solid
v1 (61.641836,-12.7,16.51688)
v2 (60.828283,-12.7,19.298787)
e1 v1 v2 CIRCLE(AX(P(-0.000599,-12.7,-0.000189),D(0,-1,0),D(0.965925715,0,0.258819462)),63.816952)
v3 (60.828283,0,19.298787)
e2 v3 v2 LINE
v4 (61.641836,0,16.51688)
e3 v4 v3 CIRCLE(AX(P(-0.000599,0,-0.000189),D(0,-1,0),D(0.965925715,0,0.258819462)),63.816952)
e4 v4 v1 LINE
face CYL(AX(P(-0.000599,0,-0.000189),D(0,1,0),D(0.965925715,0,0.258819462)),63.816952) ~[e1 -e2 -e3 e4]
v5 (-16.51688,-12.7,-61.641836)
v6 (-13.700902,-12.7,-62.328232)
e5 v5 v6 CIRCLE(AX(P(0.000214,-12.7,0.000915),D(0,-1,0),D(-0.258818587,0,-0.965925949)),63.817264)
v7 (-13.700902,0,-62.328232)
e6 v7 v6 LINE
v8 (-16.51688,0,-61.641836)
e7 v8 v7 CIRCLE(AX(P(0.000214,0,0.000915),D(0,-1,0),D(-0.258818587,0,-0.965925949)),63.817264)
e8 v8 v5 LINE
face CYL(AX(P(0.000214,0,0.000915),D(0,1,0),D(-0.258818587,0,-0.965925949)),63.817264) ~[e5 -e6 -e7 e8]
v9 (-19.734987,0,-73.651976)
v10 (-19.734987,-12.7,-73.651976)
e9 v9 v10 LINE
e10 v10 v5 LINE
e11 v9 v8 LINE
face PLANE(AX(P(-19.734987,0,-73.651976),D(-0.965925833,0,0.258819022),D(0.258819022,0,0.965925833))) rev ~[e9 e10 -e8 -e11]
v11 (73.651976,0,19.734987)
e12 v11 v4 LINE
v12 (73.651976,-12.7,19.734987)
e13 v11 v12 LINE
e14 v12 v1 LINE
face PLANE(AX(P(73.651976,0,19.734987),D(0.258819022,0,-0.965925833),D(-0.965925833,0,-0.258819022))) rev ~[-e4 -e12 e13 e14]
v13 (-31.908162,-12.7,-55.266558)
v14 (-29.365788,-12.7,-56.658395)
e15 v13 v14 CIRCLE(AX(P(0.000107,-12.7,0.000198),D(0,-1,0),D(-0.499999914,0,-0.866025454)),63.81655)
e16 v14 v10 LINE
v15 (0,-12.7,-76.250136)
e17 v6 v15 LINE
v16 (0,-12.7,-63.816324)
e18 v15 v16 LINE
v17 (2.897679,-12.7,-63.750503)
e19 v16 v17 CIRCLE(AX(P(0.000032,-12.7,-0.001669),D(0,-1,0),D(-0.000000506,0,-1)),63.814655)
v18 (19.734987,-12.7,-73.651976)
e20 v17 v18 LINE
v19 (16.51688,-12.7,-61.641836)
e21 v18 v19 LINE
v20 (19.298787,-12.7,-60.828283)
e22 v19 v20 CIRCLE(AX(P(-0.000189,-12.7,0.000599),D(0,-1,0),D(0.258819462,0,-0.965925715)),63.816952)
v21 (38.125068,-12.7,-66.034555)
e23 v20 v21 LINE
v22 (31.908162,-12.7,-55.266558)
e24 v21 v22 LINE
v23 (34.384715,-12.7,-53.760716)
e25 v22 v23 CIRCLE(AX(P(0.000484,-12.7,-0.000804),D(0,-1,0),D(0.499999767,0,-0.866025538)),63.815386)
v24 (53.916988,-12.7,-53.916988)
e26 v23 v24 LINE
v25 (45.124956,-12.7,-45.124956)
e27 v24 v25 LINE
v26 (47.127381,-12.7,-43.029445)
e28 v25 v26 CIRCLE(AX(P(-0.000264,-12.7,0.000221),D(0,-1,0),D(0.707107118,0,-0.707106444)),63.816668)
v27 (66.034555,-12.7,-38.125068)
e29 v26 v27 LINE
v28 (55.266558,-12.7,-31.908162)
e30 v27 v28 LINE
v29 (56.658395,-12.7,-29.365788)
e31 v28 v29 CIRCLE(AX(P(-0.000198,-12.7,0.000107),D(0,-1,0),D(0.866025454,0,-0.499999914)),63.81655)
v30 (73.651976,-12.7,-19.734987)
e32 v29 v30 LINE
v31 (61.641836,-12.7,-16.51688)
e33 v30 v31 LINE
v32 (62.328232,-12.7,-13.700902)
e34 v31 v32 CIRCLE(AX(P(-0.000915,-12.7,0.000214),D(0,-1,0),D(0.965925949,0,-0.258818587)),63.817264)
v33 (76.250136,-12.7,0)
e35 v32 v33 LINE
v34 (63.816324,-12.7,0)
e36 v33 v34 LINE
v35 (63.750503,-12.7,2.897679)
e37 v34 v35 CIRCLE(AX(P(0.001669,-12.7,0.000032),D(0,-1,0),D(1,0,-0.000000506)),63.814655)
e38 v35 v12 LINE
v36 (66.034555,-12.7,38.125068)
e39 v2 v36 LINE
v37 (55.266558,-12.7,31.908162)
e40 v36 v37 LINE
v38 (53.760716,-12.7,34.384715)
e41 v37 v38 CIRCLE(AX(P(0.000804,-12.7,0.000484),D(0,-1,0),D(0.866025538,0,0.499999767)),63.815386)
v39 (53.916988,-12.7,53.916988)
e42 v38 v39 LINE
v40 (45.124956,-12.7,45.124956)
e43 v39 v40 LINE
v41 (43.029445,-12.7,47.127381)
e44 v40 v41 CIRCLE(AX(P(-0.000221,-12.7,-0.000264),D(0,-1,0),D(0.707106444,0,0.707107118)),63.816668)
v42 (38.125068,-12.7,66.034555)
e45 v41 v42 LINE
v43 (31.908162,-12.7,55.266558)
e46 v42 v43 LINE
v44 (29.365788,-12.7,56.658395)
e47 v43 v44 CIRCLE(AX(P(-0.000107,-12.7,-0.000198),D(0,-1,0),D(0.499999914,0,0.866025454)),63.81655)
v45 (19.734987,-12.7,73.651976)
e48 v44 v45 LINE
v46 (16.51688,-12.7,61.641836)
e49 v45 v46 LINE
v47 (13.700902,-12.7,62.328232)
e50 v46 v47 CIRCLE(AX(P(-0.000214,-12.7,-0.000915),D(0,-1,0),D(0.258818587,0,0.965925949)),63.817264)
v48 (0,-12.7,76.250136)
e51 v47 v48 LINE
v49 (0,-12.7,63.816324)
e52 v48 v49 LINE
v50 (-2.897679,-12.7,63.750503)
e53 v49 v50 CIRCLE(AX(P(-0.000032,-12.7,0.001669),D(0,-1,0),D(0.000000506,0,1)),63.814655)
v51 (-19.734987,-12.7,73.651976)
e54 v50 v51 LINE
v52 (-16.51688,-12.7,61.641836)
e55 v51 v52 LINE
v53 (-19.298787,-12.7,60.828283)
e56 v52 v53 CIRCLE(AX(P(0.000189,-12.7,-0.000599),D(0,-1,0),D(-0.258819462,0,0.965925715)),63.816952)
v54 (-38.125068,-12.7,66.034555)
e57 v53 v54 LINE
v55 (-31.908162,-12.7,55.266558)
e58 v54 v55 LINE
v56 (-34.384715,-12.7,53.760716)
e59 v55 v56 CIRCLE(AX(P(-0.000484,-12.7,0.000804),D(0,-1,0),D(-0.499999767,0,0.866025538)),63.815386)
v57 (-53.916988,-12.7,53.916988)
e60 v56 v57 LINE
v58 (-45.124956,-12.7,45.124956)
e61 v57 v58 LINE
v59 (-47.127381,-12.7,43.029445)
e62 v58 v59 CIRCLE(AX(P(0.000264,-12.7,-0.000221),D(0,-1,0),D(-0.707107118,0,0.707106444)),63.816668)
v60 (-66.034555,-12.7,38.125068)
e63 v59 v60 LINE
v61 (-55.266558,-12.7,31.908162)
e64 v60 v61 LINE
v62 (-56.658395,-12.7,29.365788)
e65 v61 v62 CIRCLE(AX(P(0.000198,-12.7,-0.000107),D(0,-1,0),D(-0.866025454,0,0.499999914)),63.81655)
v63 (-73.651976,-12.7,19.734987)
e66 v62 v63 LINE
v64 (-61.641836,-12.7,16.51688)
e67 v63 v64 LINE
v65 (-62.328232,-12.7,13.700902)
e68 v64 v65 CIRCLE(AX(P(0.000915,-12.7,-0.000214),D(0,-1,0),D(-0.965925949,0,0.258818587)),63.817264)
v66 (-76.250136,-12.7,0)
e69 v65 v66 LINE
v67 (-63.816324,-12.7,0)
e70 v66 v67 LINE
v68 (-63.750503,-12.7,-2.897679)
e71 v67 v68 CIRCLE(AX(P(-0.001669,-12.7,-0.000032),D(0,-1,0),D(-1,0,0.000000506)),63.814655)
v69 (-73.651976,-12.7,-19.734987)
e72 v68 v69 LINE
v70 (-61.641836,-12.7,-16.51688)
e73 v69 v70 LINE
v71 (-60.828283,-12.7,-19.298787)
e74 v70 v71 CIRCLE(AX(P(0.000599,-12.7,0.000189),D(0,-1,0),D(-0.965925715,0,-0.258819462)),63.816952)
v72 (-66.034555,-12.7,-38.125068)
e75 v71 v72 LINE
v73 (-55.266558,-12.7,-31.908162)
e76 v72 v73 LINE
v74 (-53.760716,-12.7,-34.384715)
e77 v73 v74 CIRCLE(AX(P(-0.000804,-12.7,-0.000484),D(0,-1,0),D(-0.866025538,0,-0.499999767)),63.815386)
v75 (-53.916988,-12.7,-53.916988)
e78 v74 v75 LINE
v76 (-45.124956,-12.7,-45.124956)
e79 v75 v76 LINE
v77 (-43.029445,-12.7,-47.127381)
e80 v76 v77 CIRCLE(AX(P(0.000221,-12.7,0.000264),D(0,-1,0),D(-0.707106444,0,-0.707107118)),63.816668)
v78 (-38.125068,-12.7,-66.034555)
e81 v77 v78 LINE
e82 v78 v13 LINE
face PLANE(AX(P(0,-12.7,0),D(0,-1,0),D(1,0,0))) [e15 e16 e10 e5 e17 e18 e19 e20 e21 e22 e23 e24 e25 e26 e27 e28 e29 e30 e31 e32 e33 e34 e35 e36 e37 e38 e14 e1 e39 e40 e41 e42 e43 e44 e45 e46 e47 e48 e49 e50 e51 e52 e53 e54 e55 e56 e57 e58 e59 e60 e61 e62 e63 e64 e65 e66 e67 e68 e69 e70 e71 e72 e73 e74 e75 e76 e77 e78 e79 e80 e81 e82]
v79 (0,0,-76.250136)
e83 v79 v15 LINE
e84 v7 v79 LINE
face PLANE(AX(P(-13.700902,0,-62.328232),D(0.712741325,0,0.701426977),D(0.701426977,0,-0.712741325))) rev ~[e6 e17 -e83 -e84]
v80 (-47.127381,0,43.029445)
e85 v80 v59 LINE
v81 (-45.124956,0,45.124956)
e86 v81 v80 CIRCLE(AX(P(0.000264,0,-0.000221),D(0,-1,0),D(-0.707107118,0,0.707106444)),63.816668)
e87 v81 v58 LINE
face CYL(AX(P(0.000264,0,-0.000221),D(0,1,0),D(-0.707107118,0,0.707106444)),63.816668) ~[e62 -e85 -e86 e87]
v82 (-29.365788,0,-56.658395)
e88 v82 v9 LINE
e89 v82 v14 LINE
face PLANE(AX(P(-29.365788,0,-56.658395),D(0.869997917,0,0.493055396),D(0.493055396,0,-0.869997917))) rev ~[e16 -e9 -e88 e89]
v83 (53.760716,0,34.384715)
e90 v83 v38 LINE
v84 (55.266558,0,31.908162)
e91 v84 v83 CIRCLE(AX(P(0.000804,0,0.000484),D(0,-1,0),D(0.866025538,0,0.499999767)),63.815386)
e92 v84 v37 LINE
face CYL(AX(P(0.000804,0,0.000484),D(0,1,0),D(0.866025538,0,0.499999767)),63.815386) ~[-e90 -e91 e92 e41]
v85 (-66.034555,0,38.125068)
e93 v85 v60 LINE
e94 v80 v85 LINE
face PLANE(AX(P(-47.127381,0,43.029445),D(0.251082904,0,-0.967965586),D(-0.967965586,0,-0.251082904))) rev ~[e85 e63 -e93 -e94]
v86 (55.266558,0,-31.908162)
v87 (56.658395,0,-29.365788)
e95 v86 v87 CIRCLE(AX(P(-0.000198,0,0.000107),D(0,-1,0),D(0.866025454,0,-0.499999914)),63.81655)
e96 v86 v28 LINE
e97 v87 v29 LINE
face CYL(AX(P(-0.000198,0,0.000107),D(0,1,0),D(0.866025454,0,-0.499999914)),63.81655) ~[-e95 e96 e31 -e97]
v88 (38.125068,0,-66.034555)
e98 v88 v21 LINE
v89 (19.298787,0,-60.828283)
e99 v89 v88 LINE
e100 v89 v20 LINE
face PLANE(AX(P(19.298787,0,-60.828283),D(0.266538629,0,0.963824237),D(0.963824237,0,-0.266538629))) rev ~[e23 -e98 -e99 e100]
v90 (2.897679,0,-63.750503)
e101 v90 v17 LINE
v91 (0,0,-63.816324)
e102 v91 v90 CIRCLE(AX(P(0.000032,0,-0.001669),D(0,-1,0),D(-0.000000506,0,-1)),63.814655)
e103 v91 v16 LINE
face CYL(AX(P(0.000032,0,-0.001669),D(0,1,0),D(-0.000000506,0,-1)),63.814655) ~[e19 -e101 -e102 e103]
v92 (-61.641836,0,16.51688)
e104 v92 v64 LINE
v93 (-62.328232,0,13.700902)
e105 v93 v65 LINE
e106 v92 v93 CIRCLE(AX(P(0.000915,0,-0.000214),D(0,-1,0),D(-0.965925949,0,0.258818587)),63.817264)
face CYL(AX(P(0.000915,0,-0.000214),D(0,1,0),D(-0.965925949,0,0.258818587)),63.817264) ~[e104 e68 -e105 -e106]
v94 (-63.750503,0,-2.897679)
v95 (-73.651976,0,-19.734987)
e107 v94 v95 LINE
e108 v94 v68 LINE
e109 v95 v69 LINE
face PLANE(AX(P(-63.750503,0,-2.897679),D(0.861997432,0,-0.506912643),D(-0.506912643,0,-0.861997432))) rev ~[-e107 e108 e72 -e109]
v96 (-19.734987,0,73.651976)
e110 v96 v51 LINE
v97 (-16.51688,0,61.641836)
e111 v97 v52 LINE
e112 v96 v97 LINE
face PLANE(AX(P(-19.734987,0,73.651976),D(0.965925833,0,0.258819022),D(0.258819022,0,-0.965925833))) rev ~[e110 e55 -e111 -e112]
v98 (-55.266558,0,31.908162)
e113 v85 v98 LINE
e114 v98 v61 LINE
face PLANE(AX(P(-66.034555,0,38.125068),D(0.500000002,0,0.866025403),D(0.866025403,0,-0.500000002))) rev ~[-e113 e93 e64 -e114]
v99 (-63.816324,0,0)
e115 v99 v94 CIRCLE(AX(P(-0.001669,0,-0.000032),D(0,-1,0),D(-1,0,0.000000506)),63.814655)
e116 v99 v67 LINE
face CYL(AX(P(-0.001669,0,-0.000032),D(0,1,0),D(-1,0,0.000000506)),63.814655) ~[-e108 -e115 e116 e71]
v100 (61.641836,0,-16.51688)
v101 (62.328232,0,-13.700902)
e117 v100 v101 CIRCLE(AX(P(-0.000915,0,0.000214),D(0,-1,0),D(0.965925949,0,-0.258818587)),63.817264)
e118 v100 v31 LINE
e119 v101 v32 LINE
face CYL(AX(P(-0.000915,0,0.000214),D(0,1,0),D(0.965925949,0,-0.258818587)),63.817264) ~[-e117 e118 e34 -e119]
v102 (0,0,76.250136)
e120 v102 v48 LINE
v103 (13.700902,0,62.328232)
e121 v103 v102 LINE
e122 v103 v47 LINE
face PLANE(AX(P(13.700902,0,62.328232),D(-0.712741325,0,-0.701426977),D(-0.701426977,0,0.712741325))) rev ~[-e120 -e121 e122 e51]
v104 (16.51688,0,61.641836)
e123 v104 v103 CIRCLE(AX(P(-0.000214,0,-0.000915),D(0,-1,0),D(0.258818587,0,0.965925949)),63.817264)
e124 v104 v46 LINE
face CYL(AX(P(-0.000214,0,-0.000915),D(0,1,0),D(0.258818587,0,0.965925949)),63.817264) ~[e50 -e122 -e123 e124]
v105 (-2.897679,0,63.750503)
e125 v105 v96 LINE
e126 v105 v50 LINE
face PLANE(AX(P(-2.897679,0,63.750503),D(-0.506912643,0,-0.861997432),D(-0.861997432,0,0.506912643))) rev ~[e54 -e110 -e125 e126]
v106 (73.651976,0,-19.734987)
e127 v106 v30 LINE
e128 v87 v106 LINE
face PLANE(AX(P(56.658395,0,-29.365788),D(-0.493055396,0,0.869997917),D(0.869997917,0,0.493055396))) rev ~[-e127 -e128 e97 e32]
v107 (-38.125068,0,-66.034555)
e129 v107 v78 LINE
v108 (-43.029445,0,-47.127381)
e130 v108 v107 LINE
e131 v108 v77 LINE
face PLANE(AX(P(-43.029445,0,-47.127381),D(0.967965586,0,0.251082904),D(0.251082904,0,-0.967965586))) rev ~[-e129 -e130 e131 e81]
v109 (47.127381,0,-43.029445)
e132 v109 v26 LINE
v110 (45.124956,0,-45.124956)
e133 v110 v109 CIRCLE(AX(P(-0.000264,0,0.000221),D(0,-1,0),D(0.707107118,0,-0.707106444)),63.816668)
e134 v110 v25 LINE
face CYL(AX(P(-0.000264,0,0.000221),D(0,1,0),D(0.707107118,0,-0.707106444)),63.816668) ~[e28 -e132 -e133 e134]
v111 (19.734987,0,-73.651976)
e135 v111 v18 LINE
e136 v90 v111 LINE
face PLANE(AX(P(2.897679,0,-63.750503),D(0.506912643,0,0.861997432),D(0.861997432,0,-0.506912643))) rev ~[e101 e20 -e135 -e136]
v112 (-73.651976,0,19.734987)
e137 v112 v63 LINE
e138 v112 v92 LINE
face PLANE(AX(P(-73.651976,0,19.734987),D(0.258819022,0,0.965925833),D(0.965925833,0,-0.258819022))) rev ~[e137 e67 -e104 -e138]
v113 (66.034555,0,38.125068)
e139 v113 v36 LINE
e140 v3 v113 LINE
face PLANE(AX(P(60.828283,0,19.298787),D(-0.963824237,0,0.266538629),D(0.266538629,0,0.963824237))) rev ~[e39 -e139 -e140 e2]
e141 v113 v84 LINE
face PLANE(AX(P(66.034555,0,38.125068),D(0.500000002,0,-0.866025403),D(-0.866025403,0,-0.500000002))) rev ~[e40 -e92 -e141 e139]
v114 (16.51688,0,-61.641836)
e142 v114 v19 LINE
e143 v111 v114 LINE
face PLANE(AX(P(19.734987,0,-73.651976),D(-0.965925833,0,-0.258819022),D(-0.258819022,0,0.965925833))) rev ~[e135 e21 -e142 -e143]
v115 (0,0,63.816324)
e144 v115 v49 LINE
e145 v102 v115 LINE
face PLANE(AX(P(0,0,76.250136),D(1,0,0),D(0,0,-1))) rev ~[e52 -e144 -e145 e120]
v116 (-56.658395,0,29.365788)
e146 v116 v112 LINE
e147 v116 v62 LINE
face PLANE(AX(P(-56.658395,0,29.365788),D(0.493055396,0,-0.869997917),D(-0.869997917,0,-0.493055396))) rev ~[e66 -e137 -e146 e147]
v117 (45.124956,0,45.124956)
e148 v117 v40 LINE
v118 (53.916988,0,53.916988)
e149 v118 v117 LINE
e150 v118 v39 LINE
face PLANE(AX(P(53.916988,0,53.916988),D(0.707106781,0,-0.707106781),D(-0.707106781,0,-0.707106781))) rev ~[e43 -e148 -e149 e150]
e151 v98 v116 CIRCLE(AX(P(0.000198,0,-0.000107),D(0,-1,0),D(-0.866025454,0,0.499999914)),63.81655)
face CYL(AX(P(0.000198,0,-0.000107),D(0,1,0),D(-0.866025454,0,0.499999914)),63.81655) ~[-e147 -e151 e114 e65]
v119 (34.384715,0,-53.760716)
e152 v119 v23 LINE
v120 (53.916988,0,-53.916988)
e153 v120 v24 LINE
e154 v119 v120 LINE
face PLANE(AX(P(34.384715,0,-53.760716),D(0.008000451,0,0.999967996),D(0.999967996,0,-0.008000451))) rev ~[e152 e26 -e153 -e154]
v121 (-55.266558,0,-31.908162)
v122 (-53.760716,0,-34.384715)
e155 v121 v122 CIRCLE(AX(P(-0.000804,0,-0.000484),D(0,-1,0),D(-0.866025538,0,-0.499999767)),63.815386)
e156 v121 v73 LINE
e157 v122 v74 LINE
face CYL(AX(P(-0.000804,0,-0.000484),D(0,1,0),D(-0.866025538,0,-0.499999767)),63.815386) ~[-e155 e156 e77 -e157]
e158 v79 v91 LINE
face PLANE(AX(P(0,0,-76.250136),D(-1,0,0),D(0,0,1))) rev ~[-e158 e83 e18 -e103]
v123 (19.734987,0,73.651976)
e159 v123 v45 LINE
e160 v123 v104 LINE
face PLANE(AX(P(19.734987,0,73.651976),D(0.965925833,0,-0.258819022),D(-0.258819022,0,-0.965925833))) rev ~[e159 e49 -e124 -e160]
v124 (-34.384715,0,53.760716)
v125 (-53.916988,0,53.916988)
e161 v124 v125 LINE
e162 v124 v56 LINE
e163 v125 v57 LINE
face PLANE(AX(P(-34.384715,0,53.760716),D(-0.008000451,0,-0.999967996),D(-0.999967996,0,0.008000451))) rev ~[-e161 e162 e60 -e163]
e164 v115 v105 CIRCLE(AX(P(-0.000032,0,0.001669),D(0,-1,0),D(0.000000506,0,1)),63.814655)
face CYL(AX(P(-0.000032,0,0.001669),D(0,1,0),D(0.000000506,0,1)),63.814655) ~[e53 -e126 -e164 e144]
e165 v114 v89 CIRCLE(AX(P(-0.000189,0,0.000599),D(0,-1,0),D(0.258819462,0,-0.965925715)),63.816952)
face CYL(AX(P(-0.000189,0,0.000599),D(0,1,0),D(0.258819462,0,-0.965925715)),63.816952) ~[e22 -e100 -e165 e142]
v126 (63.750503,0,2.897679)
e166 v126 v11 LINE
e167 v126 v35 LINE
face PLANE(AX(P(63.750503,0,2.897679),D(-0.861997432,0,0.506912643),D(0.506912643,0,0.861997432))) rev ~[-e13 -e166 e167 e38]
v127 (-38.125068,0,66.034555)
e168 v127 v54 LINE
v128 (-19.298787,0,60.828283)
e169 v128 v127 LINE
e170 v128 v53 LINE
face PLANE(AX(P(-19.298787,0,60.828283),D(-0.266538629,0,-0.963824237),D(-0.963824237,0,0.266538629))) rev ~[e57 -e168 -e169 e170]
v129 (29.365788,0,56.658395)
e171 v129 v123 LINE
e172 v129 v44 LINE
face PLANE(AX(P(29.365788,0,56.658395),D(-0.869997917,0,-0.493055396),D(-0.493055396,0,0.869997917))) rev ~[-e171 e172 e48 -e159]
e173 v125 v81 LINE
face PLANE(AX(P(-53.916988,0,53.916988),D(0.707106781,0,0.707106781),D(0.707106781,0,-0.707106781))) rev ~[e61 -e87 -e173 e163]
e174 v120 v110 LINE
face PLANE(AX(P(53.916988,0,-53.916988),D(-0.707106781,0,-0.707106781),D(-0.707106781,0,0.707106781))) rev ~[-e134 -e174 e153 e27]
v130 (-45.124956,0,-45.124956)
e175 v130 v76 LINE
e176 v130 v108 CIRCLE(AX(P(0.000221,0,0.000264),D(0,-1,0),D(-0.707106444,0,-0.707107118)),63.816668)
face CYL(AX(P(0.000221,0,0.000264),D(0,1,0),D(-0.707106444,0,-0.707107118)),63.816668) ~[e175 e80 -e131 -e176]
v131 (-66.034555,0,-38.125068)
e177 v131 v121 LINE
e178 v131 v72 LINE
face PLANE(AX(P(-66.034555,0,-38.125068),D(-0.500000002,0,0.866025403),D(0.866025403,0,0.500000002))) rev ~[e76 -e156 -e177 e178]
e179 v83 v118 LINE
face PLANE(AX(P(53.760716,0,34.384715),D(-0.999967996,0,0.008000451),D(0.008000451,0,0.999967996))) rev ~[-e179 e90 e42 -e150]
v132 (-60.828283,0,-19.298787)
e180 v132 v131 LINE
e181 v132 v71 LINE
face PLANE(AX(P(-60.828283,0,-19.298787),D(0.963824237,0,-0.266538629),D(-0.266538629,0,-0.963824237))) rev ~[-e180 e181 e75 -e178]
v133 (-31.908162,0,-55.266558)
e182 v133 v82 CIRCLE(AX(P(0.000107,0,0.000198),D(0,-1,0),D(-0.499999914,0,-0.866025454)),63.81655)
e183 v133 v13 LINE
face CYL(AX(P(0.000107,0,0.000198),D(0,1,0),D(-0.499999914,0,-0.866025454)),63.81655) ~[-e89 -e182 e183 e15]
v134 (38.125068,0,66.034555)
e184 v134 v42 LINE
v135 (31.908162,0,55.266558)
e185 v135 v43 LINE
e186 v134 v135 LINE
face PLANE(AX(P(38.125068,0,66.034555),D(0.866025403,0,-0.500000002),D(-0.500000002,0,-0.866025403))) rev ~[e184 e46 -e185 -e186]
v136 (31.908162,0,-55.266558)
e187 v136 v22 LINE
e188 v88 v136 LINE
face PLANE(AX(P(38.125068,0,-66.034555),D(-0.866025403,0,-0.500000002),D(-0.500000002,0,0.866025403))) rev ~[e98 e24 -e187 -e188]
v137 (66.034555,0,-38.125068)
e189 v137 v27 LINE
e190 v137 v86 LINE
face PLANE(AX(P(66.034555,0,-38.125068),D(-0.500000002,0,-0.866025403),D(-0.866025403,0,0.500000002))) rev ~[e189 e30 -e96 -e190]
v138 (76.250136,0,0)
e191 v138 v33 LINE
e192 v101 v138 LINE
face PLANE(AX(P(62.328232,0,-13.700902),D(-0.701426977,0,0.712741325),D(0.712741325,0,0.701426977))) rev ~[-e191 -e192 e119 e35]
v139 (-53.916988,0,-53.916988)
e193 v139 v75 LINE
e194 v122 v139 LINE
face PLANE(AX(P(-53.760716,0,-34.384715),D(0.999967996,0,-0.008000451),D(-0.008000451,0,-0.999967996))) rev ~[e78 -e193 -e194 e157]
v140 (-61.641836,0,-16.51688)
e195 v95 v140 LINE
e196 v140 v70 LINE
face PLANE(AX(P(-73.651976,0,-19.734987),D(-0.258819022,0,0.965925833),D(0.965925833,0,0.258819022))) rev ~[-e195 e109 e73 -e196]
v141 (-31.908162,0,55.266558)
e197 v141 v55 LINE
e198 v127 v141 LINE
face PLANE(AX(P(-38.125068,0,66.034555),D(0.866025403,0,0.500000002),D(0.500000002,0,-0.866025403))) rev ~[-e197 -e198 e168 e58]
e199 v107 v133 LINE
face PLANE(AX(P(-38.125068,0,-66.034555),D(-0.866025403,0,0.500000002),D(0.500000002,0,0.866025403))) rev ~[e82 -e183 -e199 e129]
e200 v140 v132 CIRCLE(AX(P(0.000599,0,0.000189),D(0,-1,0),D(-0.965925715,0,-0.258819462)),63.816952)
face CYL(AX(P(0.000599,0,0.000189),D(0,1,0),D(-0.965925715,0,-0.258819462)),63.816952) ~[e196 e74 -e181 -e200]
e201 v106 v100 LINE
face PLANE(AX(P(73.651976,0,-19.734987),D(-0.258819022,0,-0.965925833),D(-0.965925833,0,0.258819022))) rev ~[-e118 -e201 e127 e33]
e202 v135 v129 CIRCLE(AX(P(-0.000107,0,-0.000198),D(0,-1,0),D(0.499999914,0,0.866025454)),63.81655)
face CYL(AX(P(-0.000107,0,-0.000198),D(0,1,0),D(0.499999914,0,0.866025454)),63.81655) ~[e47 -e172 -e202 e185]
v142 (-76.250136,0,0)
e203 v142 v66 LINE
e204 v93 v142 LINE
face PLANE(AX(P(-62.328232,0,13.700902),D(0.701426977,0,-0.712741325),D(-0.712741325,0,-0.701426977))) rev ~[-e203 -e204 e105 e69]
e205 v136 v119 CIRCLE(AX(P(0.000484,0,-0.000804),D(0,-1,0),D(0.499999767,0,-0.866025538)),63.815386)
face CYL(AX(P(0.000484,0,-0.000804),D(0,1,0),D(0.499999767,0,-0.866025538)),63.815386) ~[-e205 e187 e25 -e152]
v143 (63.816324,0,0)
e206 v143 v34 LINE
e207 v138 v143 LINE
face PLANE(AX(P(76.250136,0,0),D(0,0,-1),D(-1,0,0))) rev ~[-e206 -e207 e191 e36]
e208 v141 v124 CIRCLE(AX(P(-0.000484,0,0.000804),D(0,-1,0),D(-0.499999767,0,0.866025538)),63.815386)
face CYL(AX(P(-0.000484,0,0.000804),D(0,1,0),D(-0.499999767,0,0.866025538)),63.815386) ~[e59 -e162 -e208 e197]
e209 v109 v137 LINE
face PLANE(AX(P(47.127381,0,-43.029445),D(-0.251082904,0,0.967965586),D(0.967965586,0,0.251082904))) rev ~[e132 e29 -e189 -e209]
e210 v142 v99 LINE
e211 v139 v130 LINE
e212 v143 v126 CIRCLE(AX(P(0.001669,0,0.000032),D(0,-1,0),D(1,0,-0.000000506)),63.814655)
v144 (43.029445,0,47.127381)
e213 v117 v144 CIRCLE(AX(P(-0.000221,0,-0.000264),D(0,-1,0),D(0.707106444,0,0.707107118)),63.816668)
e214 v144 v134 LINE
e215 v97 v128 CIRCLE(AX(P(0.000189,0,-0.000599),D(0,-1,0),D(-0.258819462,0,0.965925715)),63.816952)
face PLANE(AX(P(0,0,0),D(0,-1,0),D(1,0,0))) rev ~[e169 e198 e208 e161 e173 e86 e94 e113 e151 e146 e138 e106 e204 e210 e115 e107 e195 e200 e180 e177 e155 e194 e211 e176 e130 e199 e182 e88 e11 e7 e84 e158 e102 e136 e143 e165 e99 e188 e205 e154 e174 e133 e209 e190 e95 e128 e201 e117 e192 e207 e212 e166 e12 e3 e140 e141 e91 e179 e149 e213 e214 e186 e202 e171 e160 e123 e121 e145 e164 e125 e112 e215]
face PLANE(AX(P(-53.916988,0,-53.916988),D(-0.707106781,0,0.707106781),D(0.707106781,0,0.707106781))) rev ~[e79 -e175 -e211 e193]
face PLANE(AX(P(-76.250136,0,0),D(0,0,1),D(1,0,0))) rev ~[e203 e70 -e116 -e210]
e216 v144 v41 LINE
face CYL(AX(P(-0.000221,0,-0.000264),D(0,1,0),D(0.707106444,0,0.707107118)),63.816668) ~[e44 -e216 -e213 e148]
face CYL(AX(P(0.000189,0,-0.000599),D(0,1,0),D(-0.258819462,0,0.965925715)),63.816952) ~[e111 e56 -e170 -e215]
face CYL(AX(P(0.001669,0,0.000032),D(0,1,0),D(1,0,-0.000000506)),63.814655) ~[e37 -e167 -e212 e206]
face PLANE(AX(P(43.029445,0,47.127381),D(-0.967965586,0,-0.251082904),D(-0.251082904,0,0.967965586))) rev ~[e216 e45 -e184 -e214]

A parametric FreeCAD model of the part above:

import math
import FreeCAD as App
import Part
import Sketcher

V = App.Vector
Q = App.Units.Quantity

doc = App.newDocument("Part")
body = doc.addObject("PartDesign::Body", "Body")

# Sketch on XZ plane
sketch1 = body.newObject("Sketcher::SketchObject", "Sketch")
sketch1.AttachmentSupport = (doc.getObject("XZ_Plane"), [""])
sketch1.MapMode = "FlatFace"
sketch1.addGeometry(Part.ArcOfCircle(Part.Circle(V(-0.000032, 0.001669, 0), V(0, 0, 1), 63.814655), math.radians(89.999971), math.radians(92.602537)), False)
sketch1.addGeometry(Part.LineSegment(V(-2.897679, 63.750503, 0), V(-19.734987, 73.651976, 0)), False)
sketch1.addGeometry(Part.LineSegment(V(-19.734987, 73.651976, 0), V(-16.51688, 61.641836, 0)), False)
sketch1.addGeometry(Part.ArcOfCircle(Part.Circle(V(0.000189, -0.000599, 0), V(0, 0, 1), 63.816952), math.radians(105.000025), math.radians(107.602497)), False)
sketch1.addGeometry(Part.LineSegment(V(-19.298787, 60.828283, 0), V(-38.125068, 66.034555, 0)), False)
sketch1.addGeometry(Part.LineSegment(V(-38.125068, 66.034555, 0), V(-31.908162, 55.266558, 0)), False)
sketch1.addGeometry(Part.ArcOfCircle(Part.Circle(V(-0.000484, 0.000804, 0), V(0, 0, 1), 63.815386), math.radians(119.999985), math.radians(122.602521)), False)
sketch1.addGeometry(Part.LineSegment(V(-34.384715, 53.760716, 0), V(-53.916988, 53.916988, 0)), False)
sketch1.addGeometry(Part.LineSegment(V(-53.916988, 53.916988, 0), V(-45.124956, 45.124956, 0)), False)
sketch1.addGeometry(Part.ArcOfCircle(Part.Circle(V(0.000264, -0.000221, 0), V(0, 0, 1), 63.816668), math.radians(135.000027), math.radians(137.602511)), False)
sketch1.addGeometry(Part.LineSegment(V(-47.127381, 43.029445, 0), V(-66.034555, 38.125068, 0)), False)
sketch1.addGeometry(Part.LineSegment(V(-66.034555, 38.125068, 0), V(-55.266558, 31.908162, 0)), False)
sketch1.addGeometry(Part.ArcOfCircle(Part.Circle(V(0.000198, -0.000107, 0), V(0, 0, 1), 63.81655), math.radians(150.000006), math.radians(152.602495)), False)
sketch1.addGeometry(Part.LineSegment(V(-56.658395, 29.365788, 0), V(-73.651976, 19.734987, 0)), False)
sketch1.addGeometry(Part.LineSegment(V(-73.651976, 19.734987, 0), V(-61.641836, 16.51688, 0)), False)
sketch1.addGeometry(Part.ArcOfCircle(Part.Circle(V(0.000915, -0.000214, 0), V(0, 0, 1), 63.817264), math.radians(165.000027), math.radians(167.602487)), False)
sketch1.addGeometry(Part.LineSegment(V(-62.328232, 13.700902, 0), V(-76.250136, 0, 0)), False)
sketch1.addGeometry(Part.LineSegment(V(-76.250136, 0, 0), V(-63.816324, 0, 0)), False)
sketch1.addGeometry(Part.ArcOfCircle(Part.Circle(V(-0.001669, -0.000032, 0), V(0, 0, 1), 63.814655), math.radians(179.999971), math.radians(182.602537)), False)
sketch1.addGeometry(Part.LineSegment(V(-63.750503, -2.897679, 0), V(-73.651976, -19.734987, 0)), False)
sketch1.addGeometry(Part.LineSegment(V(-73.651976, -19.734987, 0), V(-61.641836, -16.51688, 0)), False)
sketch1.addGeometry(Part.ArcOfCircle(Part.Circle(V(0.000599, 0.000189, 0), V(0, 0, 1), 63.816952), math.radians(-164.999975), math.radians(-162.397503)), False)
sketch1.addGeometry(Part.LineSegment(V(-60.828283, -19.298787, 0), V(-66.034555, -38.125068, 0)), False)
sketch1.addGeometry(Part.LineSegment(V(-66.034555, -38.125068, 0), V(-55.266558, -31.908162, 0)), False)
sketch1.addGeometry(Part.ArcOfCircle(Part.Circle(V(-0.000804, -0.000484, 0), V(0, 0, 1), 63.815386), math.radians(-150.000015), math.radians(-147.397479)), False)
sketch1.addGeometry(Part.LineSegment(V(-53.760716, -34.384715, 0), V(-53.916988, -53.916988, 0)), False)
sketch1.addGeometry(Part.LineSegment(V(-53.916988, -53.916988, 0), V(-45.124956, -45.124956, 0)), False)
sketch1.addGeometry(Part.ArcOfCircle(Part.Circle(V(0.000221, 0.000264, 0), V(0, 0, 1), 63.816668), math.radians(-134.999973), math.radians(-132.397489)), False)
sketch1.addGeometry(Part.LineSegment(V(-43.029445, -47.127381, 0), V(-38.125068, -66.034555, 0)), False)
sketch1.addGeometry(Part.LineSegment(V(-38.125068, -66.034555, 0), V(-31.908162, -55.266558, 0)), False)
sketch1.addGeometry(Part.ArcOfCircle(Part.Circle(V(0.000107, 0.000198, 0), V(0, 0, 1), 63.81655), math.radians(-119.999994), math.radians(-117.397505)), False)
sketch1.addGeometry(Part.LineSegment(V(-29.365788, -56.658395, 0), V(-19.734987, -73.651976, 0)), False)
sketch1.addGeometry(Part.LineSegment(V(-19.734987, -73.651976, 0), V(-16.51688, -61.641836, 0)), False)
sketch1.addGeometry(Part.ArcOfCircle(Part.Circle(V(0.000214, 0.000915, 0), V(0, 0, 1), 63.817264), math.radians(-104.999973), math.radians(-102.397513)), False)
sketch1.addGeometry(Part.LineSegment(V(-13.700902, -62.328232, 0), V(0, -76.250136, 0)), False)
sketch1.addGeometry(Part.LineSegment(V(0, -76.250136, 0), V(0, -63.816324, 0)), False)
sketch1.addGeometry(Part.ArcOfCircle(Part.Circle(V(0.000032, -0.001669, 0), V(0, 0, 1), 63.814655), math.radians(-90.000029), math.radians(-87.397463)), False)
sketch1.addGeometry(Part.LineSegment(V(2.897679, -63.750503, 0), V(19.734987, -73.651976, 0)), False)
sketch1.addGeometry(Part.LineSegment(V(19.734987, -73.651976, 0), V(16.51688, -61.641836, 0)), False)
sketch1.addGeometry(Part.ArcOfCircle(Part.Circle(V(-0.000189, 0.000599, 0), V(0, 0, 1), 63.816952), math.radians(-74.999975), math.radians(-72.397503)), False)
sketch1.addGeometry(Part.LineSegment(V(19.298787, -60.828283, 0), V(38.125068, -66.034555, 0)), False)
sketch1.addGeometry(Part.LineSegment(V(38.125068, -66.034555, 0), V(31.908162, -55.266558, 0)), False)
sketch1.addGeometry(Part.ArcOfCircle(Part.Circle(V(0.000484, -0.000804, 0), V(0, 0, 1), 63.815386), math.radians(-60.000015), math.radians(-57.397479)), False)
sketch1.addGeometry(Part.LineSegment(V(34.384715, -53.760716, 0), V(53.916988, -53.916988, 0)), False)
sketch1.addGeometry(Part.LineSegment(V(53.916988, -53.916988, 0), V(45.124956, -45.124956, 0)), False)
sketch1.addGeometry(Part.ArcOfCircle(Part.Circle(V(-0.000264, 0.000221, 0), V(0, 0, 1), 63.816668), math.radians(-44.999973), math.radians(-42.397489)), False)
sketch1.addGeometry(Part.LineSegment(V(47.127381, -43.029445, 0), V(66.034555, -38.125068, 0)), False)
sketch1.addGeometry(Part.LineSegment(V(66.034555, -38.125068, 0), V(55.266558, -31.908162, 0)), False)
sketch1.addGeometry(Part.ArcOfCircle(Part.Circle(V(-0.000198, 0.000107, 0), V(0, 0, 1), 63.81655), math.radians(-29.999994), math.radians(-27.397505)), False)
sketch1.addGeometry(Part.LineSegment(V(56.658395, -29.365788, 0), V(73.651976, -19.734987, 0)), False)
sketch1.addGeometry(Part.LineSegment(V(73.651976, -19.734987, 0), V(61.641836, -16.51688, 0)), False)
sketch1.addGeometry(Part.ArcOfCircle(Part.Circle(V(-0.000915, 0.000214, 0), V(0, 0, 1), 63.817264), math.radians(-14.999973), math.radians(-12.397513)), False)
sketch1.addGeometry(Part.LineSegment(V(62.328232, -13.700902, 0), V(76.250136, 0, 0)), False)
sketch1.addGeometry(Part.LineSegment(V(76.250136, 0, 0), V(63.816324, 0, 0)), False)
sketch1.addGeometry(Part.ArcOfCircle(Part.Circle(V(0.001669, 0.000032, 0), V(0, 0, 1), 63.814655), math.radians(-0.000029), math.radians(2.602537)), False)
sketch1.addGeometry(Part.LineSegment(V(63.750503, 2.897679, 0), V(73.651976, 19.734987, 0)), False)
sketch1.addGeometry(Part.LineSegment(V(73.651976, 19.734987, 0), V(61.641836, 16.51688, 0)), False)
sketch1.addGeometry(Part.ArcOfCircle(Part.Circle(V(-0.000599, -0.000189, 0), V(0, 0, 1), 63.816952), math.radians(15.000025), math.radians(17.602497)), False)
sketch1.addGeometry(Part.LineSegment(V(60.828283, 19.298787, 0), V(66.034555, 38.125068, 0)), False)
sketch1.addGeometry(Part.LineSegment(V(66.034555, 38.125068, 0), V(55.266558, 31.908162, 0)), False)
sketch1.addGeometry(Part.ArcOfCircle(Part.Circle(V(0.000804, 0.000484, 0), V(0, 0, 1), 63.815386), math.radians(29.999985), math.radians(32.602521)), False)
sketch1.addGeometry(Part.LineSegment(V(53.760716, 34.384715, 0), V(53.916988, 53.916988, 0)), False)
sketch1.addGeometry(Part.LineSegment(V(53.916988, 53.916988, 0), V(45.124956, 45.124956, 0)), False)
sketch1.addGeometry(Part.ArcOfCircle(Part.Circle(V(-0.000221, -0.000264, 0), V(0, 0, 1), 63.816668), math.radians(45.000027), math.radians(47.602511)), False)
sketch1.addGeometry(Part.LineSegment(V(43.029445, 47.127381, 0), V(38.125068, 66.034555, 0)), False)
sketch1.addGeometry(Part.LineSegment(V(38.125068, 66.034555, 0), V(31.908162, 55.266558, 0)), False)
sketch1.addGeometry(Part.ArcOfCircle(Part.Circle(V(-0.000107, -0.000198, 0), V(0, 0, 1), 63.81655), math.radians(60.000006), math.radians(62.602495)), False)
sketch1.addGeometry(Part.LineSegment(V(29.365788, 56.658395, 0), V(19.734987, 73.651976, 0)), False)
sketch1.addGeometry(Part.LineSegment(V(19.734987, 73.651976, 0), V(16.51688, 61.641836, 0)), False)
sketch1.addGeometry(Part.ArcOfCircle(Part.Circle(V(-0.000214, -0.000915, 0), V(0, 0, 1), 63.817264), math.radians(75.000027), math.radians(77.602487)), False)
sketch1.addGeometry(Part.LineSegment(V(13.700902, 62.328232, 0), V(0, 76.250136, 0)), False)
sketch1.addGeometry(Part.LineSegment(V(0, 76.250136, 0), V(0, 63.816324, 0)), False)
sketch1.addConstraint(Sketcher.Constraint("Coincident", 0, 2, 1, 1))
sketch1.addConstraint(Sketcher.Constraint("Coincident", 1, 2, 2, 1))
sketch1.addConstraint(Sketcher.Constraint("Coincident", 2, 2, 3, 1))
sketch1.addConstraint(Sketcher.Constraint("Coincident", 3, 2, 4, 1))
sketch1.addConstraint(Sketcher.Constraint("Coincident", 4, 2, 5, 1))
sketch1.addConstraint(Sketcher.Constraint("Coincident", 5, 2, 6, 1))
sketch1.addConstraint(Sketcher.Constraint("Coincident", 6, 2, 7, 1))
sketch1.addConstraint(Sketcher.Constraint("Coincident", 7, 2, 8, 1))
sketch1.addConstraint(Sketcher.Constraint("Coincident", 8, 2, 9, 1))
sketch1.addConstraint(Sketcher.Constraint("Coincident", 9, 2, 10, 1))
sketch1.addConstraint(Sketcher.Constraint("Coincident", 10, 2, 11, 1))
sketch1.addConstraint(Sketcher.Constraint("Coincident", 11, 2, 12, 1))
sketch1.addConstraint(Sketcher.Constraint("Coincident", 12, 2, 13, 1))
sketch1.addConstraint(Sketcher.Constraint("Coincident", 13, 2, 14, 1))
sketch1.addConstraint(Sketcher.Constraint("Coincident", 14, 2, 15, 1))
sketch1.addConstraint(Sketcher.Constraint("Coincident", 15, 2, 16, 1))
sketch1.addConstraint(Sketcher.Constraint("Coincident", 16, 2, 17, 1))
sketch1.addConstraint(Sketcher.Constraint("Coincident", 17, 2, 18, 1))
sketch1.addConstraint(Sketcher.Constraint("Coincident", 18, 2, 19, 1))
sketch1.addConstraint(Sketcher.Constraint("Coincident", 19, 2, 20, 1))
sketch1.addConstraint(Sketcher.Constraint("Coincident", 20, 2, 21, 1))
sketch1.addConstraint(Sketcher.Constraint("Coincident", 21, 2, 22, 1))
sketch1.addConstraint(Sketcher.Constraint("Coincident", 22, 2, 23, 1))
sketch1.addConstraint(Sketcher.Constraint("Coincident", 23, 2, 24, 1))
sketch1.addConstraint(Sketcher.Constraint("Coincident", 24, 2, 25, 1))
sketch1.addConstraint(Sketcher.Constraint("Coincident", 25, 2, 26, 1))
sketch1.addConstraint(Sketcher.Constraint("Coincident", 26, 2, 27, 1))
sketch1.addConstraint(Sketcher.Constraint("Coincident", 27, 2, 28, 1))
sketch1.addConstraint(Sketcher.Constraint("Coincident", 28, 2, 29, 1))
sketch1.addConstraint(Sketcher.Constraint("Coincident", 29, 2, 30, 1))
sketch1.addConstraint(Sketcher.Constraint("Coincident", 30, 2, 31, 1))
sketch1.addConstraint(Sketcher.Constraint("Coincident", 31, 2, 32, 1))
sketch1.addConstraint(Sketcher.Constraint("Coincident", 32, 2, 33, 1))
sketch1.addConstraint(Sketcher.Constraint("Coincident", 33, 2, 34, 1))
sketch1.addConstraint(Sketcher.Constraint("Coincident", 34, 2, 35, 1))
sketch1.addConstraint(Sketcher.Constraint("Coincident", 35, 2, 36, 1))
sketch1.addConstraint(Sketcher.Constraint("Coincident", 36, 2, 37, 1))
sketch1.addConstraint(Sketcher.Constraint("Coincident", 37, 2, 38, 1))
sketch1.addConstraint(Sketcher.Constraint("Coincident", 38, 2, 39, 1))
sketch1.addConstraint(Sketcher.Constraint("Coincident", 39, 2, 40, 1))
sketch1.addConstraint(Sketcher.Constraint("Coincident", 40, 2, 41, 1))
sketch1.addConstraint(Sketcher.Constraint("Coincident", 41, 2, 42, 1))
sketch1.addConstraint(Sketcher.Constraint("Coincident", 42, 2, 43, 1))
sketch1.addConstraint(Sketcher.Constraint("Coincident", 43, 2, 44, 1))
sketch1.addConstraint(Sketcher.Constraint("Coincident", 44, 2, 45, 1))
sketch1.addConstraint(Sketcher.Constraint("Coincident", 45, 2, 46, 1))
sketch1.addConstraint(Sketcher.Constraint("Coincident", 46, 2, 47, 1))
sketch1.addConstraint(Sketcher.Constraint("Coincident", 47, 2, 48, 1))
sketch1.addConstraint(Sketcher.Constraint("Coincident", 48, 2, 49, 1))
sketch1.addConstraint(Sketcher.Constraint("Coincident", 49, 2, 50, 1))
sketch1.addConstraint(Sketcher.Constraint("Coincident", 50, 2, 51, 1))
sketch1.addConstraint(Sketcher.Constraint("Coincident", 51, 2, 52, 1))
sketch1.addConstraint(Sketcher.Constraint("Coincident", 52, 2, 53, 1))
sketch1.addConstraint(Sketcher.Constraint("Coincident", 53, 2, 54, 1))
sketch1.addConstraint(Sketcher.Constraint("Coincident", 54, 2, 55, 1))
sketch1.addConstraint(Sketcher.Constraint("Coincident", 55, 2, 56, 1))
sketch1.addConstraint(Sketcher.Constraint("Coincident", 56, 2, 57, 1))
sketch1.addConstraint(Sketcher.Constraint("Coincident", 57, 2, 58, 1))
sketch1.addConstraint(Sketcher.Constraint("Coincident", 58, 2, 59, 1))
sketch1.addConstraint(Sketcher.Constraint("Coincident", 59, 2, 60, 1))
sketch1.addConstraint(Sketcher.Constraint("Coincident", 60, 2, 61, 1))
sketch1.addConstraint(Sketcher.Constraint("Coincident", 61, 2, 62, 1))
sketch1.addConstraint(Sketcher.Constraint("Coincident", 62, 2, 63, 1))
sketch1.addConstraint(Sketcher.Constraint("Coincident", 63, 2, 64, 1))
sketch1.addConstraint(Sketcher.Constraint("Coincident", 64, 2, 65, 1))
sketch1.addConstraint(Sketcher.Constraint("Coincident", 65, 2, 66, 1))
sketch1.addConstraint(Sketcher.Constraint("Coincident", 66, 2, 67, 1))
sketch1.addConstraint(Sketcher.Constraint("Coincident", 67, 2, 68, 1))
sketch1.addConstraint(Sketcher.Constraint("Coincident", 68, 2, 69, 1))
sketch1.addConstraint(Sketcher.Constraint("Coincident", 69, 2, 70, 1))
sketch1.addConstraint(Sketcher.Constraint("Coincident", 70, 2, 71, 1))
sketch1.addConstraint(Sketcher.Constraint("Coincident", 71, 2, 0, 1))
sketch1.addConstraint(Sketcher.Constraint("Horizontal", 17))
sketch1.addConstraint(Sketcher.Constraint("Vertical", 35))
sketch1.addConstraint(Sketcher.Constraint("Horizontal", 53))
sketch1.addConstraint(Sketcher.Constraint("Vertical", 71))
sketch1.addConstraint(Sketcher.Constraint("Equal", 0, 18))
sketch1.addConstraint(Sketcher.Constraint("Equal", 3, 21))
sketch1.addConstraint(Sketcher.Constraint("Equal", 6, 24))
sketch1.addConstraint(Sketcher.Constraint("Equal", 9, 27))
sketch1.addConstraint(Sketcher.Constraint("Equal", 12, 30))
sketch1.addConstraint(Sketcher.Constraint("Equal", 15, 33))
sketch1.addConstraint(Sketcher.Constraint("Equal", 18, 36))
sketch1.addConstraint(Sketcher.Constraint("Equal", 21, 39))
sketch1.addConstraint(Sketcher.Constraint("Equal", 24, 42))
sketch1.addConstraint(Sketcher.Constraint("Equal", 27, 45))
sketch1.addConstraint(Sketcher.Constraint("Equal", 30, 48))
sketch1.addConstraint(Sketcher.Constraint("Equal", 33, 51))
sketch1.addConstraint(Sketcher.Constraint("Equal", 36, 54))
sketch1.addConstraint(Sketcher.Constraint("Equal", 39, 57))
sketch1.addConstraint(Sketcher.Constraint("Equal", 42, 60))
sketch1.addConstraint(Sketcher.Constraint("Equal", 45, 63))
sketch1.addConstraint(Sketcher.Constraint("Equal", 48, 66))
sketch1.addConstraint(Sketcher.Constraint("Equal", 51, 69))
sketch1.addConstraint(Sketcher.Constraint("Symmetric", 0, 3, 36, 3, -1, 1))
sketch1.addConstraint(Sketcher.Constraint("Symmetric", 3, 3, 39, 3, -1, 1))
sketch1.addConstraint(Sketcher.Constraint("Symmetric", 6, 3, 42, 3, -1, 1))
sketch1.addConstraint(Sketcher.Constraint("Symmetric", 9, 3, 45, 3, -1, 1))
sketch1.addConstraint(Sketcher.Constraint("Symmetric", 12, 3, 48, 3, -1, 1))
sketch1.addConstraint(Sketcher.Constraint("Symmetric", 15, 3, 51, 3, -1, 1))
sketch1.addConstraint(Sketcher.Constraint("Symmetric", 18, 3, 54, 3, -1, 1))
sketch1.addConstraint(Sketcher.Constraint("Symmetric", 21, 3, 57, 3, -1, 1))
sketch1.addConstraint(Sketcher.Constraint("Symmetric", 24, 3, 60, 3, -1, 1))
sketch1.addConstraint(Sketcher.Constraint("Symmetric", 27, 3, 63, 3, -1, 1))
sketch1.addConstraint(Sketcher.Constraint("Symmetric", 30, 3, 66, 3, -1, 1))
sketch1.addConstraint(Sketcher.Constraint("Symmetric", 33, 3, 69, 3, -1, 1))
sketch1.addConstraint(Sketcher.Constraint("Symmetric", 1, 2, 37, 2, -1, 1))
sketch1.addConstraint(Sketcher.Constraint("Symmetric", 4, 2, 40, 2, -1, 1))
sketch1.addConstraint(Sketcher.Constraint("Symmetric", 7, 2, 43, 2, -1, 1))
sketch1.addConstraint(Sketcher.Constraint("Symmetric", 10, 2, 46, 2, -1, 1))
sketch1.addConstraint(Sketcher.Constraint("Symmetric", 13, 2, 49, 2, -1, 1))
sketch1.addConstraint(Sketcher.Constraint("Symmetric", 16, 2, 52, 2, -1, 1))
sketch1.addConstraint(Sketcher.Constraint("Symmetric", 19, 2, 55, 2, -1, 1))
sketch1.addConstraint(Sketcher.Constraint("Symmetric", 22, 2, 58, 2, -1, 1))
sketch1.addConstraint(Sketcher.Constraint("Symmetric", 25, 2, 61, 2, -1, 1))
sketch1.addConstraint(Sketcher.Constraint("Symmetric", 28, 2, 64, 2, -1, 1))
sketch1.addConstraint(Sketcher.Constraint("Symmetric", 31, 2, 67, 2, -1, 1))
sketch1.addConstraint(Sketcher.Constraint("Symmetric", 34, 2, 70, 2, -1, 1))
sketch1.addConstraint(Sketcher.Constraint("Symmetric", 31, 2, 37, 2, -2))
sketch1.addConstraint(Sketcher.Constraint("Symmetric", 32, 2, 38, 2, -2))
sketch1.addConstraint(Sketcher.Constraint("Symmetric", 28, 2, 40, 2, -2))
sketch1.addConstraint(Sketcher.Constraint("Symmetric", 29, 2, 41, 2, -2))
sketch1.addConstraint(Sketcher.Constraint("Symmetric", 25, 2, 43, 2, -2))
sketch1.addConstraint(Sketcher.Constraint("Symmetric", 26, 2, 44, 2, -2))
sketch1.addConstraint(Sketcher.Constraint("Symmetric", 22, 2, 46, 2, -2))
sketch1.addConstraint(Sketcher.Constraint("Symmetric", 23, 2, 47, 2, -2))
sketch1.addConstraint(Sketcher.Constraint("Symmetric", 19, 2, 49, 2, -2))
sketch1.addConstraint(Sketcher.Constraint("Symmetric", 20, 2, 50, 2, -2))
sketch1.addConstraint(Sketcher.Constraint("PointOnObject", 16, 2, -1))
sketch1.addConstraint(Sketcher.Constraint("PointOnObject", 34, 2, -2))
sketch1.addConstraint(Sketcher.Constraint("Perpendicular", 1, 19))
sketch1.addConstraint(Sketcher.Constraint("Perpendicular", 2, 20))
sketch1.addConstraint(Sketcher.Constraint("Perpendicular", 4, 22))
sketch1.addConstraint(Sketcher.Constraint("Perpendicular", 5, 23))
sketch1.addConstraint(Sketcher.Constraint("Perpendicular", 7, 25))
sketch1.addConstraint(Sketcher.Constraint("Perpendicular", 8, 26))
sketch1.addConstraint(Sketcher.Constraint("Perpendicular", 10, 28))
sketch1.addConstraint(Sketcher.Constraint("Perpendicular", 11, 29))
sketch1.addConstraint(Sketcher.Constraint("Perpendicular", 13, 31))
sketch1.addConstraint(Sketcher.Constraint("Perpendicular", 14, 32))
sketch1.addConstraint(Sketcher.Constraint("Perpendicular", 16, 34))
sketch1.addConstraint(Sketcher.Constraint("Perpendicular", 19, 37))
sketch1.addConstraint(Sketcher.Constraint("Perpendicular", 20, 38))
sketch1.addConstraint(Sketcher.Constraint("Perpendicular", 22, 40))
sketch1.addConstraint(Sketcher.Constraint("Perpendicular", 23, 41))
sketch1.addConstraint(Sketcher.Constraint("Perpendicular", 25, 43))
sketch1.addConstraint(Sketcher.Constraint("Perpendicular", 26, 44))
sketch1.addConstraint(Sketcher.Constraint("Perpendicular", 28, 46))
sketch1.addConstraint(Sketcher.Constraint("Perpendicular", 31, 49))
sketch1.addConstraint(Sketcher.Constraint("Perpendicular", 34, 52))
sketch1.addConstraint(Sketcher.Constraint("Perpendicular", 37, 55))
sketch1.addConstraint(Sketcher.Constraint("Perpendicular", 38, 56))
sketch1.addConstraint(Sketcher.Constraint("Perpendicular", 40, 58))
sketch1.addConstraint(Sketcher.Constraint("Perpendicular", 41, 59))
sketch1.addConstraint(Sketcher.Constraint("Perpendicular", 43, 61))
sketch1.addConstraint(Sketcher.Constraint("Perpendicular", 44, 62))
sketch1.addConstraint(Sketcher.Constraint("Perpendicular", 46, 64))
sketch1.addConstraint(Sketcher.Constraint("Perpendicular", 47, 65))
sketch1.addConstraint(Sketcher.Constraint("Perpendicular", 49, 67))
sketch1.addConstraint(Sketcher.Constraint("Perpendicular", 50, 68))
sketch1.addConstraint(Sketcher.Constraint("Perpendicular", 52, 70))
sketch1.addConstraint(Sketcher.Constraint("Equal", 53, 35))
sketch1.addConstraint(Sketcher.Constraint("Equal", 1, 4))
sketch1.addConstraint(Sketcher.Constraint("Equal", 2, 5))
sketch1.addConstraint(Sketcher.Constraint("Equal", 4, 7))
sketch1.addConstraint(Sketcher.Constraint("Equal", 5, 8))
sketch1.addConstraint(Sketcher.Constraint("Equal", 7, 10))
sketch1.addConstraint(Sketcher.Constraint("Equal", 8, 11))
sketch1.addConstraint(Sketcher.Constraint("Equal", 10, 13))
sketch1.addConstraint(Sketcher.Constraint("Equal", 11, 14))
sketch1.addConstraint(Sketcher.Constraint("Equal", 13, 16))
sketch1.addConstraint(Sketcher.Constraint("Equal", 16, 19))
sketch1.addConstraint(Sketcher.Constraint("Equal", 19, 22))
sketch1.addConstraint(Sketcher.Constraint("Equal", 22, 25))
sketch1.addConstraint(Sketcher.Constraint("Equal", 25, 28))
sketch1.addConstraint(Sketcher.Constraint("Equal", 28, 31))
sketch1.addConstraint(Sketcher.Constraint("Equal", 31, 34))
sketch1.addConstraint(Sketcher.Constraint("Angle", 2, Q("-75.000001 deg")))
sketch1.addConstraint(Sketcher.Constraint("Angle", 5, Q("-60 deg")))
sketch1.addConstraint(Sketcher.Constraint("Radius", 9, 63.816668))
sketch1.addConstraint(Sketcher.Constraint("Radius", 12, 63.81655))
sketch1.addConstraint(Sketcher.Constraint("Radius", 0, 63.814655))
sketch1.addConstraint(Sketcher.Constraint("Radius", 3, 63.816952))
sketch1.addConstraint(Sketcher.Constraint("Radius", 6, 63.815386))
sketch1.addConstraint(Sketcher.Constraint("Radius", 15, 63.817264))
sketch1.addConstraint(Sketcher.Constraint("Distance", 1, 19.532898))
sketch1.addConstraint(Sketcher.Constraint("DistanceX", 17, 1, 17, 2, 12.433812))
sketch1.addConstraint(Sketcher.Constraint("DistanceY", 3, 3, -1, 1, 0.000599))
sketch1.addConstraint(Sketcher.Constraint("DistanceX", -1, 1, 12, 3, 0.000198))
sketch1.addConstraint(Sketcher.Constraint("DistanceX", -1, 1, 21, 3, 0.000599))
sketch1.addConstraint(Sketcher.Constraint("DistanceY", -1, 1, 30, 3, 0.000198))
sketch1.addConstraint(Sketcher.Constraint("DistanceY", -1, 1, 15, 2, 13.700902))
sketch1.addConstraint(Sketcher.Constraint("Distance", 2, 12.433812))
sketch1.addConstraint(Sketcher.Constraint("DistanceY", -1, 1, 0, 3, 0.001669))
sketch1.addConstraint(Sketcher.Constraint("DistanceX", -1, 1, 3, 3, 0.000189))
sketch1.addConstraint(Sketcher.Constraint("DistanceY", 9, 3, -1, 1, 0.000221))
sketch1.addConstraint(Sketcher.Constraint("DistanceX", 18, 3, -1, 1, 0.001669))
sketch1.addConstraint(Sketcher.Constraint("DistanceY", -1, 1, 21, 3, 0.000189))
sketch1.addConstraint(Sketcher.Constraint("DistanceX", -1, 1, 27, 3, 0.000221))
sketch1.addConstraint(Sketcher.Constraint("DistanceX", 0, 2, -1, 1, 2.897679))
sketch1.addConstraint(Sketcher.Constraint("DistanceX", 2, 2, -1, 1, 16.51688))
sketch1.addConstraint(Sketcher.Constraint("DistanceY", -1, 1, 5, 2, 55.266558))
sketch1.addConstraint(Sketcher.Constraint("DistanceX", 7, 2, -1, 1, 53.916988))
sketch1.addConstraint(Sketcher.Constraint("DistanceY", -1, 1, 7, 2, 53.916988))
sketch1.addConstraint(Sketcher.Constraint("DistanceX", 6, 3, -1, 1, 0.000484))
sketch1.addConstraint(Sketcher.Constraint("DistanceY", -1, 1, 6, 3, 0.000804))
pad1 = body.newObject("PartDesign::Pad", "Pad")
pad1.Profile = sketch1
pad1.Length = Q("0.5 in")

doc.recompute()
